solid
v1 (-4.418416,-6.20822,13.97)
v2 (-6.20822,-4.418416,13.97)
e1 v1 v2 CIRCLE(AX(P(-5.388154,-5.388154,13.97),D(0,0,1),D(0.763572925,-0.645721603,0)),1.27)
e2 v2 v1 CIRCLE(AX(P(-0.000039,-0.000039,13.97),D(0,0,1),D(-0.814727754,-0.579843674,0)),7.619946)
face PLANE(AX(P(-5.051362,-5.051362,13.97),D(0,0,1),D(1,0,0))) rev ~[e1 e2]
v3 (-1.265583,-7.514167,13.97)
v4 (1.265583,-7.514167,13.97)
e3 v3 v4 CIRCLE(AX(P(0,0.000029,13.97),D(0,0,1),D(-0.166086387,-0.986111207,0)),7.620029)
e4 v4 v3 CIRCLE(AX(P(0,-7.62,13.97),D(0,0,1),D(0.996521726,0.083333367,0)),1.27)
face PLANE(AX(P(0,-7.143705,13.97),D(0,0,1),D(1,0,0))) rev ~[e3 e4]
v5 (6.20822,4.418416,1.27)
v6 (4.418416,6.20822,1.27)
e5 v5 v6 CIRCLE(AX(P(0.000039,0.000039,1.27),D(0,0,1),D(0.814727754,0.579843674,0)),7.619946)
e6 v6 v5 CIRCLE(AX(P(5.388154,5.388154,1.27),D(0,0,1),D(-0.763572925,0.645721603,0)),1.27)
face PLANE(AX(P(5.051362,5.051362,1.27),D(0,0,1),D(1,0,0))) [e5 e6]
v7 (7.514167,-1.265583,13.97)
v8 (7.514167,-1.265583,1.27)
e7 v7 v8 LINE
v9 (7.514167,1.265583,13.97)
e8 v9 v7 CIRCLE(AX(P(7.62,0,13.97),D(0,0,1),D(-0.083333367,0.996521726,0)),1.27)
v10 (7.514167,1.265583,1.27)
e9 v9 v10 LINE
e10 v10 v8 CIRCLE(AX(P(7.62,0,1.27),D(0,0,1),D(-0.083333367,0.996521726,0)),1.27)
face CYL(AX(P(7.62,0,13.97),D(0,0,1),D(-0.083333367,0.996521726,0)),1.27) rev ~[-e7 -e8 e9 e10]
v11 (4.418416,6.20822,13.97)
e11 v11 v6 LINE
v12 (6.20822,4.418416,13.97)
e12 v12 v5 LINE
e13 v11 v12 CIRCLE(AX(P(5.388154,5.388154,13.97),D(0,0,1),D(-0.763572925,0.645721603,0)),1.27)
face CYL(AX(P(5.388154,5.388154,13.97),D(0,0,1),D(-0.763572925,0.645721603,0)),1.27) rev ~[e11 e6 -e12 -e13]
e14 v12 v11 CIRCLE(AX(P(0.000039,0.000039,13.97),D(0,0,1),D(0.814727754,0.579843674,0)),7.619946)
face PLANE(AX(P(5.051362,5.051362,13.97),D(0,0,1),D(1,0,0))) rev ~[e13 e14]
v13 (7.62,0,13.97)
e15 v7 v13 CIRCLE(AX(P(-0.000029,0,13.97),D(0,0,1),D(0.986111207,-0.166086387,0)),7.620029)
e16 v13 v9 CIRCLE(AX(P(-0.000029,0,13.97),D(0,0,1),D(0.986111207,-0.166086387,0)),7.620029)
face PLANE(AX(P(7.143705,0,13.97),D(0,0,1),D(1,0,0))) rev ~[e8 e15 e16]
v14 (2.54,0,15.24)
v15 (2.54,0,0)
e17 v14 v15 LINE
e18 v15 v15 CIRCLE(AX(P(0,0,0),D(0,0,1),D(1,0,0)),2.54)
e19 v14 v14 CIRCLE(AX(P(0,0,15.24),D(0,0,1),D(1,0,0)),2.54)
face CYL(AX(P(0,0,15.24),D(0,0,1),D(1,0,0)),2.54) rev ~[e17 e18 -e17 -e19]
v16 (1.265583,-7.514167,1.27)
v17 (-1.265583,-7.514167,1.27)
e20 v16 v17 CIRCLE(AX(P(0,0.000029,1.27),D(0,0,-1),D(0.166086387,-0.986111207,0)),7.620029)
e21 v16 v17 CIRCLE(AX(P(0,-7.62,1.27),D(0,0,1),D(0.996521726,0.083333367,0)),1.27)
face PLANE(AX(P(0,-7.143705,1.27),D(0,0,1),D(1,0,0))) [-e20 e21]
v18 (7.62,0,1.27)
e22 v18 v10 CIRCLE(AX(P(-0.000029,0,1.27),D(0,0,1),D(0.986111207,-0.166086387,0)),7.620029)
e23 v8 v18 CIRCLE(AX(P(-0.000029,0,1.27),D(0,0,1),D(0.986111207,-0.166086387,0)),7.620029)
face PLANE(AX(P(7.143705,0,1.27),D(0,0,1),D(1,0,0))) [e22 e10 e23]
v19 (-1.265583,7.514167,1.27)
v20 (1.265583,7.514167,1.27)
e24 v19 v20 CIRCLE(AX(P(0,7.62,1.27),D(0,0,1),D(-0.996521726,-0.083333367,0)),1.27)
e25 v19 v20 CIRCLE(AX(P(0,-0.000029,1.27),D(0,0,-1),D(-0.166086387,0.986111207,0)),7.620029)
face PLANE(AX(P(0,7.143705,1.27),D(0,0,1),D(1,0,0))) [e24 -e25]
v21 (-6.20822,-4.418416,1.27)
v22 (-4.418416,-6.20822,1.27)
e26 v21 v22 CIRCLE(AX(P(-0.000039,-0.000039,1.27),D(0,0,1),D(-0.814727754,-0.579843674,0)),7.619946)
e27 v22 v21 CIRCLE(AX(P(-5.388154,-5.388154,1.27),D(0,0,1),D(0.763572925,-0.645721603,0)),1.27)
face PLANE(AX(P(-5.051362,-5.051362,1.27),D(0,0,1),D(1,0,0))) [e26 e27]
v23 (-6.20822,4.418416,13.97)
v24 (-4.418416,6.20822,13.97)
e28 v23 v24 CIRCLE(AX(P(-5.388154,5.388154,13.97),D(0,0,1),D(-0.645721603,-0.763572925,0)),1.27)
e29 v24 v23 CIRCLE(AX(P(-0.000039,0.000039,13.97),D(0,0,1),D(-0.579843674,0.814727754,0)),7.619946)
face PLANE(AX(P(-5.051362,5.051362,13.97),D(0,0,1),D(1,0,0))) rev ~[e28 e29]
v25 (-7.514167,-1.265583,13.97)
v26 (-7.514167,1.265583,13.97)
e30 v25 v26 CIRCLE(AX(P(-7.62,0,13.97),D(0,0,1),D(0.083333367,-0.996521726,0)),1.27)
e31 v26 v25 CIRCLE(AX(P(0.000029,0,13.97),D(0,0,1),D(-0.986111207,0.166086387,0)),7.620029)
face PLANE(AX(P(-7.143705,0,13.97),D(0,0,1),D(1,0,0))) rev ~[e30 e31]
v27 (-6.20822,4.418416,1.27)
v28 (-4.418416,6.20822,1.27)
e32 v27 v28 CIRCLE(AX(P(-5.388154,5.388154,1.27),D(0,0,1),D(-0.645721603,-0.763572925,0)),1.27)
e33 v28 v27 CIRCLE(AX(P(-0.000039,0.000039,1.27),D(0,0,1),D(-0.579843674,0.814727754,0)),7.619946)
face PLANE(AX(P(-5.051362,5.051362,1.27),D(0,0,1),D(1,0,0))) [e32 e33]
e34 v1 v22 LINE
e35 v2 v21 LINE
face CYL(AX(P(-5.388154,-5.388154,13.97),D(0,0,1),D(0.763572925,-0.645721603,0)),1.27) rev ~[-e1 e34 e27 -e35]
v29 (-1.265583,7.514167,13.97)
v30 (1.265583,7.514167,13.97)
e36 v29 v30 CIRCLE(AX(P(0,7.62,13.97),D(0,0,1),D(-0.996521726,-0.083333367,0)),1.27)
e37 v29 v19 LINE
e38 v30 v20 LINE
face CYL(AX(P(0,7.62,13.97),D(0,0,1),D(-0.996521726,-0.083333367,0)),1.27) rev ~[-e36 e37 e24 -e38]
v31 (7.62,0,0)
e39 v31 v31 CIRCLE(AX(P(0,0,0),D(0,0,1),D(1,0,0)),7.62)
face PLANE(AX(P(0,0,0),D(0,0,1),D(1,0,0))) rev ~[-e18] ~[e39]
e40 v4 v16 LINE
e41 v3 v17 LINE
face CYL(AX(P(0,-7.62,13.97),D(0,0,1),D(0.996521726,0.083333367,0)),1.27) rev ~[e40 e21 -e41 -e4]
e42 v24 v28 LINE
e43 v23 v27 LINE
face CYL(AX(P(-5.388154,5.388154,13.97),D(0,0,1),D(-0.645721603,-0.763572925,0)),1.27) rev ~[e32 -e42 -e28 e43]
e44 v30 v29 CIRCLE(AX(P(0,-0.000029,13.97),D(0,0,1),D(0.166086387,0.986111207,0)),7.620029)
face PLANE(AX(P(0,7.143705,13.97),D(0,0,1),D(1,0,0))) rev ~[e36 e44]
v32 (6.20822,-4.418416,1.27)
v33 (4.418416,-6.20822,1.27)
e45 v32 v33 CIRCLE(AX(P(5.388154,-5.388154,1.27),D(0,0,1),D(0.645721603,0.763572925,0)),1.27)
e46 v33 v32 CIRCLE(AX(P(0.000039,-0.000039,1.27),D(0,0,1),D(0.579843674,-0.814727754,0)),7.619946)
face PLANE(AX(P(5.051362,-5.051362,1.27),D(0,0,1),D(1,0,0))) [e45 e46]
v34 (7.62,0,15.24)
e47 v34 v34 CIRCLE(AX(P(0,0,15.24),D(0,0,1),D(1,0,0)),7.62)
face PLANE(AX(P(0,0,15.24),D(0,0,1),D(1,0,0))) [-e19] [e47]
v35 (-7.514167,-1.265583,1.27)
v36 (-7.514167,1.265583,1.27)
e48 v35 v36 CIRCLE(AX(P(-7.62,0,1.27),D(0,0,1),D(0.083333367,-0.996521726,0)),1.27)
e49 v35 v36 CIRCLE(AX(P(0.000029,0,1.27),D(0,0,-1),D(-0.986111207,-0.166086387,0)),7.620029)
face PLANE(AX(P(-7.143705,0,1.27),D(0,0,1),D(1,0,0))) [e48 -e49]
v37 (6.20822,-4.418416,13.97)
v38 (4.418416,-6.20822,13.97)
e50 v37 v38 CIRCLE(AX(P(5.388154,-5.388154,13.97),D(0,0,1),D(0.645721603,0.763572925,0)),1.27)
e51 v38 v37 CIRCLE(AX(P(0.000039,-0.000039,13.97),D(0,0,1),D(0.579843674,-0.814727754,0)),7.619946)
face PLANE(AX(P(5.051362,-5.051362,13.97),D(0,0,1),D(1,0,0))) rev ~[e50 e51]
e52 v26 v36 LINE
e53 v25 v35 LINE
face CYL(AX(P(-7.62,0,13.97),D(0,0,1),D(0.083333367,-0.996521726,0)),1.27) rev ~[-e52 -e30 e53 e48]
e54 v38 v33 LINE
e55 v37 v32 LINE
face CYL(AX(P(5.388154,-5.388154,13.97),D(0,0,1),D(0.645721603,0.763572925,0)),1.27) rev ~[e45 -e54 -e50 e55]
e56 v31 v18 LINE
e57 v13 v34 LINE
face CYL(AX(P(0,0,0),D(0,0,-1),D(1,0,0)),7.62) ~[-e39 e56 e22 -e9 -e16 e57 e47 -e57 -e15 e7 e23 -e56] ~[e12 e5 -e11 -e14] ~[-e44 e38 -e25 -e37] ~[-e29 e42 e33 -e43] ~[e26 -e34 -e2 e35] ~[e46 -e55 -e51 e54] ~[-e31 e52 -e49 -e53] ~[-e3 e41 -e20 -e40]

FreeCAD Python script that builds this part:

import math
import FreeCAD as App
import Part
import Sketcher
Q = App.Units.Quantity

doc = App.newDocument("Part")
body = doc.addObject("PartDesign::Body", "Body")

# Sketch on XY plane
sketch1 = doc.addObject("Sketcher::SketchObject", "Sketch")
body.addObject(sketch1)
sketch1.AttachmentSupport = (doc.XY_Plane, [""])
sketch1.MapMode = "FlatFace"
sketch1.addGeometry(Part.Circle(App.Vector(0, 0, 0), App.Vector(0, 0, 1), 8), False)
sketch1.addConstraint([
    Sketcher.Constraint("Coincident", 0, 3, -1, 1),
    Sketcher.Constraint("Diameter", 0, Q("0.6 in")),
])
pad1 = doc.addObject("PartDesign::Pad", "Pad")
body.addObject(pad1)
pad1.Profile = sketch1
pad1.Length = Q("0.6 in")

# Sketch on XY plane
sketch2 = doc.addObject("Sketcher::SketchObject", "Sketch001")
body.addObject(sketch2)
sketch2.AttachmentSupport = (doc.XY_Plane, [""])
sketch2.MapMode = "FlatFace"
sketch2.AttachmentOffset = App.Placement(App.Vector(0, 0, 0.55 * 25.4), App.Rotation())
sketch2.addGeometry([
    Part.ArcOfCircle(Part.Circle(App.Vector(0, 7.62, 0), App.Vector(0, 0, 1), 1.27), math.radians(-175.219806), math.radians(-4.780194)),  # 0
    Part.ArcOfCircle(Part.Circle(App.Vector(0, -0.000029, 0), App.Vector(0, 0, 1), 7.620029), math.radians(80.439649), math.radians(99.560351)),  # 1
    Part.ArcOfCircle(Part.Circle(App.Vector(7.62, 0, 0), App.Vector(0, 0, 1), 1.27), math.radians(94.780194), math.radians(265.219806)),  # 2
    Part.ArcOfCircle(Part.Circle(App.Vector(-0.000029, 0, 0), App.Vector(0, 0, 1), 7.620029), math.radians(-9.560351), math.radians(9.560351)),  # 3
    Part.ArcOfCircle(Part.Circle(App.Vector(0, -7.62, 0), App.Vector(0, 0, 1), 1.27), math.radians(4.780194), math.radians(175.219806)),  # 4
    Part.ArcOfCircle(Part.Circle(App.Vector(0, 0.000029, 0), App.Vector(0, 0, 1), 7.620029), math.radians(-99.560351), math.radians(-80.439649)),  # 5
    Part.ArcOfCircle(Part.Circle(App.Vector(-7.62, 0, 0), App.Vector(0, 0, 1), 1.27), math.radians(-85.219806), math.radians(85.219806)),  # 6
    Part.ArcOfCircle(Part.Circle(App.Vector(0.000029, 0, 0), App.Vector(0, 0, 1), 7.620029), math.radians(170.439649), math.radians(189.560351)),  # 7
    Part.ArcOfCircle(Part.Circle(App.Vector(-5.388154, 5.388154, 0), App.Vector(0, 0, 1), 1.27), math.radians(-130.2198), math.radians(40.2198)),  # 8
    Part.ArcOfCircle(Part.Circle(App.Vector(-0.000039, 0.000039, 0), App.Vector(0, 0, 1), 7.619946), math.radians(125.439548), math.radians(144.560452)),  # 9
    Part.ArcOfCircle(Part.Circle(App.Vector(5.388154, 5.388154, 0), App.Vector(0, 0, 1), 1.27), math.radians(139.7802), math.radians(310.2198)),  # 10
    Part.ArcOfCircle(Part.Circle(App.Vector(0.000039, 0.000039, 0), App.Vector(0, 0, 1), 7.619946), math.radians(35.439548), math.radians(54.560452)),  # 11
    Part.ArcOfCircle(Part.Circle(App.Vector(5.388154, -5.388154, 0), App.Vector(0, 0, 1), 1.27), math.radians(49.7802), math.radians(220.2198)),  # 12
    Part.ArcOfCircle(Part.Circle(App.Vector(0.000039, -0.000039, 0), App.Vector(0, 0, 1), 7.619946), math.radians(-54.560452), math.radians(-35.439548)),  # 13
    Part.ArcOfCircle(Part.Circle(App.Vector(-5.388154, -5.388154, 0), App.Vector(0, 0, 1), 1.27), math.radians(-40.2198), math.radians(130.2198)),  # 14
    Part.ArcOfCircle(Part.Circle(App.Vector(-0.000039, -0.000039, 0), App.Vector(0, 0, 1), 7.619946), math.radians(-144.560452), math.radians(-125.439548)),  # 15
], False)
sketch2.addConstraint([
    Sketcher.Constraint("Coincident", 0, 1, 1, 2),
    Sketcher.Constraint("Coincident", 1, 1, 0, 2),
    Sketcher.Constraint("Coincident", 2, 1, 3, 2),
    Sketcher.Constraint("Coincident", 3, 1, 2, 2),
    Sketcher.Constraint("Coincident", 4, 1, 5, 2),
    Sketcher.Constraint("Coincident", 5, 1, 4, 2),
    Sketcher.Constraint("Coincident", 6, 1, 7, 2),
    Sketcher.Constraint("Coincident", 7, 1, 6, 2),
    Sketcher.Constraint("Coincident", 8, 1, 9, 2),
    Sketcher.Constraint("Coincident", 9, 1, 8, 2),
    Sketcher.Constraint("Coincident", 10, 1, 11, 2),
    Sketcher.Constraint("Coincident", 11, 1, 10, 2),
    Sketcher.Constraint("Coincident", 12, 1, 13, 2),
    Sketcher.Constraint("Coincident", 13, 1, 12, 2),
    Sketcher.Constraint("Coincident", 14, 1, 15, 2),
    Sketcher.Constraint("Coincident", 15, 1, 14, 2),
    Sketcher.Constraint("Equal", 0, 2),
    Sketcher.Constraint("Equal", 1, 3),
    Sketcher.Constraint("Equal", 2, 4),
    Sketcher.Constraint("Equal", 3, 5),
    Sketcher.Constraint("Equal", 4, 6),
    Sketcher.Constraint("Equal", 5, 7),
    Sketcher.Constraint("Equal", 6, 8),
    Sketcher.Constraint("Equal", 8, 10),
    Sketcher.Constraint("Equal", 9, 11),
    Sketcher.Constraint("Equal", 10, 12),
    Sketcher.Constraint("Equal", 11, 13),
    Sketcher.Constraint("Equal", 12, 14),
    Sketcher.Constraint("Equal", 13, 15),
    Sketcher.Constraint("Symmetric", 0, 3, 4, 3, -1, 1),
    Sketcher.Constraint("Symmetric", 1, 3, 5, 3, -1, 1),
    Sketcher.Constraint("Symmetric", 2, 3, 6, 3, -1, 1),
    Sketcher.Constraint("Symmetric", 3, 3, 7, 3, -1, 1),
    Sketcher.Constraint("Symmetric", 8, 3, 12, 3, -1, 1),
    Sketcher.Constraint("Symmetric", 9, 3, 13, 3, -1, 1),
    Sketcher.Constraint("Symmetric", 10, 3, 14, 3, -1, 1),
    Sketcher.Constraint("Symmetric", 11, 3, 15, 3, -1, 1),
    Sketcher.Constraint("Symmetric", 8, 3, 10, 3, -2),
    Sketcher.Constraint("Symmetric", 9, 3, 11, 3, -2),
    Sketcher.Constraint("Symmetric", 0, 1, 1, 1, -2),
    Sketcher.Constraint("Symmetric", 3, 1, 6, 1, -2),
    Sketcher.Constraint("Radius", 0, Q("0.05 in")),
    Sketcher.Constraint("DistanceY", -1, 1, 0, 3, Q("0.3 in")),
    Sketcher.Constraint("DistanceX", -1, 1, 2, 3, Q("0.3 in")),
    Sketcher.Constraint("Radius", 1, 7.620029),
    Sketcher.Constraint("Radius", 9, 7.619946),
    Sketcher.Constraint("DistanceY", 6, 1, 8, 1, 5.683999),
    Sketcher.Constraint("DistanceX", 0, 1, 10, 1, 5.683999),
    Sketcher.Constraint("DistanceX", 8, 1, -1, 1, 6.20822),
    Sketcher.Constraint("DistanceY", -1, 1, 9, 1, 6.20822),
    Sketcher.Constraint("DistanceY", 1, 3, 0, 3, 7.620029),
    Sketcher.Constraint("DistanceX", 3, 3, 2, 3, 7.620029),
])
pocket1 = doc.addObject("PartDesign::Pocket", "Pocket")
body.addObject(pocket1)
pocket1.Profile = sketch2
pocket1.Length = Q("0.5 in")

# Sketch on XY plane
sketch3 = doc.addObject("Sketcher::SketchObject", "Sketch002")
body.addObject(sketch3)
sketch3.AttachmentSupport = (doc.XY_Plane, [""])
sketch3.MapMode = "FlatFace"
sketch3.AttachmentOffset = App.Placement(App.Vector(0, 0, 0.6 * 25.4), App.Rotation())
sketch3.addGeometry(Part.Circle(App.Vector(0, 0, 0), App.Vector(0, 0, 1), 2.5), False)
sketch3.addConstraint([
    Sketcher.Constraint("Coincident", 0, 3, -1, 1),
    Sketcher.Constraint("Diameter", 0, Q("0.2 in")),
])
pocket2 = doc.addObject("PartDesign::Pocket", "Pocket001")
body.addObject(pocket2)
pocket2.Profile = sketch3
pocket2.Type = "ThroughAll"

doc.recompute()
